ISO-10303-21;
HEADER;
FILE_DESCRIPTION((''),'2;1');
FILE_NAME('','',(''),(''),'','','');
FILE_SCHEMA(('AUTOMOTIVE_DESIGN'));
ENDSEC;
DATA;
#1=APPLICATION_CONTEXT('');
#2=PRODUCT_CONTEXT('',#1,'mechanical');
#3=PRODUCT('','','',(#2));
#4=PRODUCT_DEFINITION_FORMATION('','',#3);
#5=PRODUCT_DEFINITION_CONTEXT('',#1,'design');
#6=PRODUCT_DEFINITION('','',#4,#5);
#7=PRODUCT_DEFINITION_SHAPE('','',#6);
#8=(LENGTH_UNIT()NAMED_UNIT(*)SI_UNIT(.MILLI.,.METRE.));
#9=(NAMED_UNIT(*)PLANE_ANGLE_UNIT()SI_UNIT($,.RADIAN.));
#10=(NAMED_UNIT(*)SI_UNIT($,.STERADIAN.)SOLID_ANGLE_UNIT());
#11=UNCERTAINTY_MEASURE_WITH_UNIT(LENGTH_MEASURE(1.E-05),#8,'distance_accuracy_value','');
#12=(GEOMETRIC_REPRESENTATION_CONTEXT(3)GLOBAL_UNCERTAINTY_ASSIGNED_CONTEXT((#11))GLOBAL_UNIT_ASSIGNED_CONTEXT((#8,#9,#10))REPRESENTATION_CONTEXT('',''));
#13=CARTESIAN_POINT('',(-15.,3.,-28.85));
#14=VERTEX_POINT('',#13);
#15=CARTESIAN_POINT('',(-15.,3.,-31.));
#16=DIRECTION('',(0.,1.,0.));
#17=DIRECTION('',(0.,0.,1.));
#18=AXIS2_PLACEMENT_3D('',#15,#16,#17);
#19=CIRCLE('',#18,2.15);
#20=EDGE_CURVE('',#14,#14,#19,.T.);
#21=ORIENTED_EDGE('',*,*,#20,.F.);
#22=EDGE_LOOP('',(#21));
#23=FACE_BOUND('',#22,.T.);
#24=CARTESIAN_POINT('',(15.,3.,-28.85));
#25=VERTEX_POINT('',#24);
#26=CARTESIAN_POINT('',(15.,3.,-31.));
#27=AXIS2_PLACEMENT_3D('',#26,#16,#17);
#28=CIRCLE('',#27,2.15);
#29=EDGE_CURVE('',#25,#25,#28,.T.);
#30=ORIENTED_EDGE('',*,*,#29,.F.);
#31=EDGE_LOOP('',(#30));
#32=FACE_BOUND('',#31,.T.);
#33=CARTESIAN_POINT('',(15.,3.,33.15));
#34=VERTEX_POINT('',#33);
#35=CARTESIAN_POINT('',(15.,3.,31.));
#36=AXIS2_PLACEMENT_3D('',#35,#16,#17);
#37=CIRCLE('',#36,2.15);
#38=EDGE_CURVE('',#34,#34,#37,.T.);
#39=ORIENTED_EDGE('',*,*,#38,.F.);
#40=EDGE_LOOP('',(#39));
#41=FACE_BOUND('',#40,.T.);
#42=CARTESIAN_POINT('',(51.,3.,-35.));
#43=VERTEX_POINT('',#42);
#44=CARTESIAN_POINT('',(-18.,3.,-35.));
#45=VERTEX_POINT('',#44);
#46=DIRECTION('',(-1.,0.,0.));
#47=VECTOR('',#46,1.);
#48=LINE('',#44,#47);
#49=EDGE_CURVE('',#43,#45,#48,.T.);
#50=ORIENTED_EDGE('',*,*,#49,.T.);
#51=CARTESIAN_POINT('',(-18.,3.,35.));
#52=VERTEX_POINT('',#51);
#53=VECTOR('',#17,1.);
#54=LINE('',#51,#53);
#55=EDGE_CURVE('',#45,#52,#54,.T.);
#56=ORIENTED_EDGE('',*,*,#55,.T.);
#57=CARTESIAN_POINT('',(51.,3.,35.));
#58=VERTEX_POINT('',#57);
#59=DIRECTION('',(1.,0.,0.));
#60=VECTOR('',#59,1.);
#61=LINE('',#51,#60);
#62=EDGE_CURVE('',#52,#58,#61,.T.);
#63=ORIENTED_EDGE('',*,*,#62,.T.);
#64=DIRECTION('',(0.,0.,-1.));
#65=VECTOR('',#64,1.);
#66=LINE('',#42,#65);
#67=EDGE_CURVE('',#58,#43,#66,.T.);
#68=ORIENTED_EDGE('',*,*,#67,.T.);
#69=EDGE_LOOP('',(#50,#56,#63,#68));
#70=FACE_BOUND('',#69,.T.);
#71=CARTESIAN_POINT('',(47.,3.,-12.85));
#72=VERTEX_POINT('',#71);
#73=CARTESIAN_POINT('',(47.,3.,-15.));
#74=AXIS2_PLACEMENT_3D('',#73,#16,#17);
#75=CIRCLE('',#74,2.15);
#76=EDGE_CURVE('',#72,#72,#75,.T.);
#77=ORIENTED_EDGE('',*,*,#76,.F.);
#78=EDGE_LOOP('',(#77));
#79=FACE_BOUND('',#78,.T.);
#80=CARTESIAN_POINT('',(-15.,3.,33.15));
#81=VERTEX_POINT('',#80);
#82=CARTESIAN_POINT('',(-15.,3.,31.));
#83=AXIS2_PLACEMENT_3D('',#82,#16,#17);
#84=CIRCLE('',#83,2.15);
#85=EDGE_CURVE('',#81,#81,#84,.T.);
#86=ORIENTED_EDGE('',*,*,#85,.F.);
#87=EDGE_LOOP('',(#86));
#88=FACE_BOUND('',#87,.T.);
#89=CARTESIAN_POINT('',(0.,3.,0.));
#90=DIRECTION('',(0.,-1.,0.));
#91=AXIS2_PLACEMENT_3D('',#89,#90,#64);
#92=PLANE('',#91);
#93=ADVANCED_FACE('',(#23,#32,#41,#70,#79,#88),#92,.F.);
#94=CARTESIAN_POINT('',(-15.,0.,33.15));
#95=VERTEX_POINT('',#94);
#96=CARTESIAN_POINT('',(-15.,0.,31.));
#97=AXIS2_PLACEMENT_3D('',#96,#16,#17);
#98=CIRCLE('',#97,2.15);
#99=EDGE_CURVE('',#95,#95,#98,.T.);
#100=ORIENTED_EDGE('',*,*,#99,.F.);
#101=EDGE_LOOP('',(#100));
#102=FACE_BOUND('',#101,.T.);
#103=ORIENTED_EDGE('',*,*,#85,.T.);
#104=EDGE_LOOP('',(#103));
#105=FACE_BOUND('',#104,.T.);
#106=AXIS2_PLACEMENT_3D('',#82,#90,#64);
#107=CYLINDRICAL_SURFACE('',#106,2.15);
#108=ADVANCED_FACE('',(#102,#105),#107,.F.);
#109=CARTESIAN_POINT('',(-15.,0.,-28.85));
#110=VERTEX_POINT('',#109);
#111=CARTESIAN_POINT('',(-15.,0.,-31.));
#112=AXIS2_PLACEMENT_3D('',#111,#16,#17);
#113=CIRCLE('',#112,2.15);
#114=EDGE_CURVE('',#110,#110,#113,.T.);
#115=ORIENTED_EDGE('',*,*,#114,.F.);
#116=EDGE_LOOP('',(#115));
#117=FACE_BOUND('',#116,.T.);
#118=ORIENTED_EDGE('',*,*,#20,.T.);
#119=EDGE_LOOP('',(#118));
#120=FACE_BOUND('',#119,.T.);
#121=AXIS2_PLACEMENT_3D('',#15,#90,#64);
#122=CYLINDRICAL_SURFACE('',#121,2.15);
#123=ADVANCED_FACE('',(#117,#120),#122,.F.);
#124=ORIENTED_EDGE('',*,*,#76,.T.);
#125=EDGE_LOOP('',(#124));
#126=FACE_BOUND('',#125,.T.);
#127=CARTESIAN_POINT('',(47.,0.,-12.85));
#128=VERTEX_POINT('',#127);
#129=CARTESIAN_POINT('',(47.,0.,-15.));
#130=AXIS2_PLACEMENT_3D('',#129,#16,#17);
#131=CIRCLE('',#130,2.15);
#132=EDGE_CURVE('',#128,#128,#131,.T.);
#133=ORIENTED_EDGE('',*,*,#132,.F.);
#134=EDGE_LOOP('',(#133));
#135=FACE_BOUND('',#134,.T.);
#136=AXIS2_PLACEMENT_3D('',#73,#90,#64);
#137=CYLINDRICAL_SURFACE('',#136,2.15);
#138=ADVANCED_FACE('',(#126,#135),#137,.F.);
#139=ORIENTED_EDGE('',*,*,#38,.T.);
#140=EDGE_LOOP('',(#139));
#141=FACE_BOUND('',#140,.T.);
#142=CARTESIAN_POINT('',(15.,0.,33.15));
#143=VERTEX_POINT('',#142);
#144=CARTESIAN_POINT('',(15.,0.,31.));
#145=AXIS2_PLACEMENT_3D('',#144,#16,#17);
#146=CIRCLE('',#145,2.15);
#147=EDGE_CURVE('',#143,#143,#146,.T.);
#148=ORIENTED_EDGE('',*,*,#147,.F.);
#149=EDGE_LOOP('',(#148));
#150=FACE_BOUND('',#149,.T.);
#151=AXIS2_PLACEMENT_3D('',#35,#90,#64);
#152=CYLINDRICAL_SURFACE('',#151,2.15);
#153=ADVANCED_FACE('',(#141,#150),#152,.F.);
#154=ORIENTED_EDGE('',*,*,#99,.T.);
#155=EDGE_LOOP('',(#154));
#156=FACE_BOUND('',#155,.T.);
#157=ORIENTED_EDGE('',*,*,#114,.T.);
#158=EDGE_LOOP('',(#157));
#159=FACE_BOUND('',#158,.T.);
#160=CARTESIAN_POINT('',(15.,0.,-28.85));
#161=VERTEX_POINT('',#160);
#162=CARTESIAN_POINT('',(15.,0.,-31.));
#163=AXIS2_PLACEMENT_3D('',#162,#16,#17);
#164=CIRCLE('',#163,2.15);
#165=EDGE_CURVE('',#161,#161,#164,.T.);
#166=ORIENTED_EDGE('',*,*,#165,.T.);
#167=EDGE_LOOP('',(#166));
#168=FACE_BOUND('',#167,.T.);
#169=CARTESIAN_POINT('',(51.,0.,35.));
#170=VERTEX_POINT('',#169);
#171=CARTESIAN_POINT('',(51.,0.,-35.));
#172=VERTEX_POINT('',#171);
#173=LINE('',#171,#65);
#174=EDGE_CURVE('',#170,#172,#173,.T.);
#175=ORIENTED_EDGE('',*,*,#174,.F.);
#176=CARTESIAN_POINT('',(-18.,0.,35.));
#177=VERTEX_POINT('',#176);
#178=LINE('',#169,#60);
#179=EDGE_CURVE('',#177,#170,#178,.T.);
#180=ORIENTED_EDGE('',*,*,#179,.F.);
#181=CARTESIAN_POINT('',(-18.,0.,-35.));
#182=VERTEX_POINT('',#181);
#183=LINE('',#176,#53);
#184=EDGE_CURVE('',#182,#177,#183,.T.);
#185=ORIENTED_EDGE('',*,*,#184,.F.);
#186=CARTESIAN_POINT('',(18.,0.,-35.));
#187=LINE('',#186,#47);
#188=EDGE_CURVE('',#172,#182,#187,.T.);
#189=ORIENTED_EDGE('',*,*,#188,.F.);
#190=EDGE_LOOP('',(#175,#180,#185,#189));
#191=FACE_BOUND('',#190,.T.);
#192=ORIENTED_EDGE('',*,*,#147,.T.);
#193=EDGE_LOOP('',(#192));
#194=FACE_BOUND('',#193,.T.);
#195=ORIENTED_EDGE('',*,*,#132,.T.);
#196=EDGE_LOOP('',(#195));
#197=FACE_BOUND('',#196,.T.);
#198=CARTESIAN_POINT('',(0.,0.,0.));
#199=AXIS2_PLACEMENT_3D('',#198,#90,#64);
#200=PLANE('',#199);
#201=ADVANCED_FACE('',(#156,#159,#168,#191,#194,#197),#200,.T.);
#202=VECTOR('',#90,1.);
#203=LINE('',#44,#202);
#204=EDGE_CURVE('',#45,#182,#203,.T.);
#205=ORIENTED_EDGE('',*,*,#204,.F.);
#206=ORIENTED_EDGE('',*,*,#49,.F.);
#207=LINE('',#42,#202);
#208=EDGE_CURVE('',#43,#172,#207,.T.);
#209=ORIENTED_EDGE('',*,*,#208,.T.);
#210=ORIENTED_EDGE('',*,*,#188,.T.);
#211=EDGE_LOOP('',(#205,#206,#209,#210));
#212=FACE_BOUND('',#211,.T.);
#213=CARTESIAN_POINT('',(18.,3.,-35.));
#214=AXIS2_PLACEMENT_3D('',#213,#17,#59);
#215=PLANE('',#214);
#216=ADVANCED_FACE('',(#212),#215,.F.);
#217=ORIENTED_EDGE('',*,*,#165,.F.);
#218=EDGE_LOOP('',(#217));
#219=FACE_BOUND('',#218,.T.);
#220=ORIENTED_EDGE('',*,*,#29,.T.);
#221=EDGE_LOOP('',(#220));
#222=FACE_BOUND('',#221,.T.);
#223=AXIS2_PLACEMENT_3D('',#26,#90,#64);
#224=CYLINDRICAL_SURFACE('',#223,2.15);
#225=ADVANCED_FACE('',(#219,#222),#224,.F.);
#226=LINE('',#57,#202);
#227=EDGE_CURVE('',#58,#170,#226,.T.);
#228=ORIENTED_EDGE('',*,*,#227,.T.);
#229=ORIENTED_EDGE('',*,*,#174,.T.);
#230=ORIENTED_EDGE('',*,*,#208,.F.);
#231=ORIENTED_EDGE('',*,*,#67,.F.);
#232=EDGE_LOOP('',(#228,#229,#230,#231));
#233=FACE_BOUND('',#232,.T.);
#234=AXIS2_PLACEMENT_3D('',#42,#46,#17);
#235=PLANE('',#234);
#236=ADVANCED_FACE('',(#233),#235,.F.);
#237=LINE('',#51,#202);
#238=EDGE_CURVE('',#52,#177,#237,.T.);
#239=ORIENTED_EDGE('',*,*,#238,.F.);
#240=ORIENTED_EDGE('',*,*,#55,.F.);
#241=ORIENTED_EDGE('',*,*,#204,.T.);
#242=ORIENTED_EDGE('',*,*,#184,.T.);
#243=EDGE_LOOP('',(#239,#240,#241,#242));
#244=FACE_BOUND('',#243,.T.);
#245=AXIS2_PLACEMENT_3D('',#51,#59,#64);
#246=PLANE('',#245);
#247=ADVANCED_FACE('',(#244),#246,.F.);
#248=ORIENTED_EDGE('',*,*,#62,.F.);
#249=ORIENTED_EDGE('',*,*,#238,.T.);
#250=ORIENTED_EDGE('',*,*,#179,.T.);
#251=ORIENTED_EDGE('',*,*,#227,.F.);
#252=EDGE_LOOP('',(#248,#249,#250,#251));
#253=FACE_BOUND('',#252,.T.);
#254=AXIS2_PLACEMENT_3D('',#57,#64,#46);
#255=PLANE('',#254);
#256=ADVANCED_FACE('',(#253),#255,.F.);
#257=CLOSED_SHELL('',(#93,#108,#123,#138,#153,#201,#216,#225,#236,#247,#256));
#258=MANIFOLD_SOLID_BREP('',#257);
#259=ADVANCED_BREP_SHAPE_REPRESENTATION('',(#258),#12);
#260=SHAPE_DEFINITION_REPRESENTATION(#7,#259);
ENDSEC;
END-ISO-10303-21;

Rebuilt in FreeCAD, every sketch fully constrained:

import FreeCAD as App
import Part
import Sketcher

doc = App.newDocument("Part")
params = doc.addObject("Spreadsheet::Sheet", "Params")
for row, (alias, value) in enumerate([
    ("sketch1_diameter", "4.3 mm"),
    ("sketch1_width", "69 mm"),
    ("sketch1_height", "70 mm"),
    ("pad1_length", "3 mm"),
], start=1):
    params.set(f"A{row}", alias)
    params.set(f"B{row}", "=" + value)
    params.setAlias(f"B{row}", alias)

body = doc.addObject("PartDesign::Body", "Body")

# Sketch on XZ plane
sketch1 = body.newObject("Sketcher::SketchObject", "Sketch")
sketch1.AttachmentSupport = (doc.getObject("XZ_Plane"), [""])
sketch1.MapMode = "FlatFace"
sketch1.addGeometry([
    Part.LineSegment(App.Vector(51, -35, 0), App.Vector(-18, -35, 0)),  # 0
    Part.LineSegment(App.Vector(-18, -35, 0), App.Vector(-18, 35, 0)),  # 1
    Part.LineSegment(App.Vector(-18, 35, 0), App.Vector(51, 35, 0)),  # 2
    Part.LineSegment(App.Vector(51, 35, 0), App.Vector(51, -35, 0)),  # 3
    Part.Circle(App.Vector(15, 31, 0), App.Vector(0, 0, 1), 2.1),  # 4
    Part.Circle(App.Vector(-15, 31, 0), App.Vector(0, 0, 1), 2.1),  # 5
    Part.Circle(App.Vector(47, -15, 0), App.Vector(0, 0, 1), 2.1),  # 6
    Part.Circle(App.Vector(15, -31, 0), App.Vector(0, 0, 1), 2.1),  # 7
    Part.Circle(App.Vector(-15, -31, 0), App.Vector(0, 0, 1), 2.1),  # 8
], False)
sketch1.addConstraint([
    Sketcher.Constraint("Coincident", 0, 2, 1, 1),
    Sketcher.Constraint("Coincident", 1, 2, 2, 1),
    Sketcher.Constraint("Coincident", 2, 2, 3, 1),
    Sketcher.Constraint("Coincident", 3, 2, 0, 1),
    Sketcher.Constraint("Horizontal", 0),
    Sketcher.Constraint("Vertical", 1),
    Sketcher.Constraint("Horizontal", 2),
    Sketcher.Constraint("Vertical", 3),
    Sketcher.Constraint("Equal", 4, 5),
    Sketcher.Constraint("Equal", 5, 6),
    Sketcher.Constraint("Equal", 6, 7),
    Sketcher.Constraint("Equal", 7, 8),
    Sketcher.Constraint("Symmetric", 5, 3, 7, 3, -1, 1),
    Sketcher.Constraint("Symmetric", 4, 3, 8, 3, -1, 1),
    Sketcher.Constraint("Symmetric", 4, 3, 5, 3, -2),
    Sketcher.Constraint("Diameter", 4, 4.3),
    Sketcher.Constraint("DistanceX", 0, 2, 0, 1, 69.0),
    Sketcher.Constraint("DistanceY", 1, 1, 1, 2, 70.0),
    Sketcher.Constraint("DistanceX", -1, 1, 4, 3, 15.0),
    Sketcher.Constraint("DistanceY", -1, 1, 4, 3, 31.0),
    Sketcher.Constraint("DistanceX", -1, 1, 6, 3, 47.0),
    Sketcher.Constraint("DistanceY", 6, 3, -1, 1, 15.0),
    Sketcher.Constraint("DistanceX", 0, 2, -1, 1, 18.0),
    Sketcher.Constraint("DistanceY", 0, 2, -1, 1, 35.0),
])
sketch1.setExpression("Constraints[15]", "Params.sketch1_diameter")
sketch1.setExpression("Constraints[16]", "Params.sketch1_width")
sketch1.setExpression("Constraints[17]", "Params.sketch1_height")
pad1 = body.newObject("PartDesign::Pad", "Pad")
pad1.Profile = sketch1
pad1.setExpression("Length", "Params.pad1_length")
pad1.Reversed = True

doc.recompute()
